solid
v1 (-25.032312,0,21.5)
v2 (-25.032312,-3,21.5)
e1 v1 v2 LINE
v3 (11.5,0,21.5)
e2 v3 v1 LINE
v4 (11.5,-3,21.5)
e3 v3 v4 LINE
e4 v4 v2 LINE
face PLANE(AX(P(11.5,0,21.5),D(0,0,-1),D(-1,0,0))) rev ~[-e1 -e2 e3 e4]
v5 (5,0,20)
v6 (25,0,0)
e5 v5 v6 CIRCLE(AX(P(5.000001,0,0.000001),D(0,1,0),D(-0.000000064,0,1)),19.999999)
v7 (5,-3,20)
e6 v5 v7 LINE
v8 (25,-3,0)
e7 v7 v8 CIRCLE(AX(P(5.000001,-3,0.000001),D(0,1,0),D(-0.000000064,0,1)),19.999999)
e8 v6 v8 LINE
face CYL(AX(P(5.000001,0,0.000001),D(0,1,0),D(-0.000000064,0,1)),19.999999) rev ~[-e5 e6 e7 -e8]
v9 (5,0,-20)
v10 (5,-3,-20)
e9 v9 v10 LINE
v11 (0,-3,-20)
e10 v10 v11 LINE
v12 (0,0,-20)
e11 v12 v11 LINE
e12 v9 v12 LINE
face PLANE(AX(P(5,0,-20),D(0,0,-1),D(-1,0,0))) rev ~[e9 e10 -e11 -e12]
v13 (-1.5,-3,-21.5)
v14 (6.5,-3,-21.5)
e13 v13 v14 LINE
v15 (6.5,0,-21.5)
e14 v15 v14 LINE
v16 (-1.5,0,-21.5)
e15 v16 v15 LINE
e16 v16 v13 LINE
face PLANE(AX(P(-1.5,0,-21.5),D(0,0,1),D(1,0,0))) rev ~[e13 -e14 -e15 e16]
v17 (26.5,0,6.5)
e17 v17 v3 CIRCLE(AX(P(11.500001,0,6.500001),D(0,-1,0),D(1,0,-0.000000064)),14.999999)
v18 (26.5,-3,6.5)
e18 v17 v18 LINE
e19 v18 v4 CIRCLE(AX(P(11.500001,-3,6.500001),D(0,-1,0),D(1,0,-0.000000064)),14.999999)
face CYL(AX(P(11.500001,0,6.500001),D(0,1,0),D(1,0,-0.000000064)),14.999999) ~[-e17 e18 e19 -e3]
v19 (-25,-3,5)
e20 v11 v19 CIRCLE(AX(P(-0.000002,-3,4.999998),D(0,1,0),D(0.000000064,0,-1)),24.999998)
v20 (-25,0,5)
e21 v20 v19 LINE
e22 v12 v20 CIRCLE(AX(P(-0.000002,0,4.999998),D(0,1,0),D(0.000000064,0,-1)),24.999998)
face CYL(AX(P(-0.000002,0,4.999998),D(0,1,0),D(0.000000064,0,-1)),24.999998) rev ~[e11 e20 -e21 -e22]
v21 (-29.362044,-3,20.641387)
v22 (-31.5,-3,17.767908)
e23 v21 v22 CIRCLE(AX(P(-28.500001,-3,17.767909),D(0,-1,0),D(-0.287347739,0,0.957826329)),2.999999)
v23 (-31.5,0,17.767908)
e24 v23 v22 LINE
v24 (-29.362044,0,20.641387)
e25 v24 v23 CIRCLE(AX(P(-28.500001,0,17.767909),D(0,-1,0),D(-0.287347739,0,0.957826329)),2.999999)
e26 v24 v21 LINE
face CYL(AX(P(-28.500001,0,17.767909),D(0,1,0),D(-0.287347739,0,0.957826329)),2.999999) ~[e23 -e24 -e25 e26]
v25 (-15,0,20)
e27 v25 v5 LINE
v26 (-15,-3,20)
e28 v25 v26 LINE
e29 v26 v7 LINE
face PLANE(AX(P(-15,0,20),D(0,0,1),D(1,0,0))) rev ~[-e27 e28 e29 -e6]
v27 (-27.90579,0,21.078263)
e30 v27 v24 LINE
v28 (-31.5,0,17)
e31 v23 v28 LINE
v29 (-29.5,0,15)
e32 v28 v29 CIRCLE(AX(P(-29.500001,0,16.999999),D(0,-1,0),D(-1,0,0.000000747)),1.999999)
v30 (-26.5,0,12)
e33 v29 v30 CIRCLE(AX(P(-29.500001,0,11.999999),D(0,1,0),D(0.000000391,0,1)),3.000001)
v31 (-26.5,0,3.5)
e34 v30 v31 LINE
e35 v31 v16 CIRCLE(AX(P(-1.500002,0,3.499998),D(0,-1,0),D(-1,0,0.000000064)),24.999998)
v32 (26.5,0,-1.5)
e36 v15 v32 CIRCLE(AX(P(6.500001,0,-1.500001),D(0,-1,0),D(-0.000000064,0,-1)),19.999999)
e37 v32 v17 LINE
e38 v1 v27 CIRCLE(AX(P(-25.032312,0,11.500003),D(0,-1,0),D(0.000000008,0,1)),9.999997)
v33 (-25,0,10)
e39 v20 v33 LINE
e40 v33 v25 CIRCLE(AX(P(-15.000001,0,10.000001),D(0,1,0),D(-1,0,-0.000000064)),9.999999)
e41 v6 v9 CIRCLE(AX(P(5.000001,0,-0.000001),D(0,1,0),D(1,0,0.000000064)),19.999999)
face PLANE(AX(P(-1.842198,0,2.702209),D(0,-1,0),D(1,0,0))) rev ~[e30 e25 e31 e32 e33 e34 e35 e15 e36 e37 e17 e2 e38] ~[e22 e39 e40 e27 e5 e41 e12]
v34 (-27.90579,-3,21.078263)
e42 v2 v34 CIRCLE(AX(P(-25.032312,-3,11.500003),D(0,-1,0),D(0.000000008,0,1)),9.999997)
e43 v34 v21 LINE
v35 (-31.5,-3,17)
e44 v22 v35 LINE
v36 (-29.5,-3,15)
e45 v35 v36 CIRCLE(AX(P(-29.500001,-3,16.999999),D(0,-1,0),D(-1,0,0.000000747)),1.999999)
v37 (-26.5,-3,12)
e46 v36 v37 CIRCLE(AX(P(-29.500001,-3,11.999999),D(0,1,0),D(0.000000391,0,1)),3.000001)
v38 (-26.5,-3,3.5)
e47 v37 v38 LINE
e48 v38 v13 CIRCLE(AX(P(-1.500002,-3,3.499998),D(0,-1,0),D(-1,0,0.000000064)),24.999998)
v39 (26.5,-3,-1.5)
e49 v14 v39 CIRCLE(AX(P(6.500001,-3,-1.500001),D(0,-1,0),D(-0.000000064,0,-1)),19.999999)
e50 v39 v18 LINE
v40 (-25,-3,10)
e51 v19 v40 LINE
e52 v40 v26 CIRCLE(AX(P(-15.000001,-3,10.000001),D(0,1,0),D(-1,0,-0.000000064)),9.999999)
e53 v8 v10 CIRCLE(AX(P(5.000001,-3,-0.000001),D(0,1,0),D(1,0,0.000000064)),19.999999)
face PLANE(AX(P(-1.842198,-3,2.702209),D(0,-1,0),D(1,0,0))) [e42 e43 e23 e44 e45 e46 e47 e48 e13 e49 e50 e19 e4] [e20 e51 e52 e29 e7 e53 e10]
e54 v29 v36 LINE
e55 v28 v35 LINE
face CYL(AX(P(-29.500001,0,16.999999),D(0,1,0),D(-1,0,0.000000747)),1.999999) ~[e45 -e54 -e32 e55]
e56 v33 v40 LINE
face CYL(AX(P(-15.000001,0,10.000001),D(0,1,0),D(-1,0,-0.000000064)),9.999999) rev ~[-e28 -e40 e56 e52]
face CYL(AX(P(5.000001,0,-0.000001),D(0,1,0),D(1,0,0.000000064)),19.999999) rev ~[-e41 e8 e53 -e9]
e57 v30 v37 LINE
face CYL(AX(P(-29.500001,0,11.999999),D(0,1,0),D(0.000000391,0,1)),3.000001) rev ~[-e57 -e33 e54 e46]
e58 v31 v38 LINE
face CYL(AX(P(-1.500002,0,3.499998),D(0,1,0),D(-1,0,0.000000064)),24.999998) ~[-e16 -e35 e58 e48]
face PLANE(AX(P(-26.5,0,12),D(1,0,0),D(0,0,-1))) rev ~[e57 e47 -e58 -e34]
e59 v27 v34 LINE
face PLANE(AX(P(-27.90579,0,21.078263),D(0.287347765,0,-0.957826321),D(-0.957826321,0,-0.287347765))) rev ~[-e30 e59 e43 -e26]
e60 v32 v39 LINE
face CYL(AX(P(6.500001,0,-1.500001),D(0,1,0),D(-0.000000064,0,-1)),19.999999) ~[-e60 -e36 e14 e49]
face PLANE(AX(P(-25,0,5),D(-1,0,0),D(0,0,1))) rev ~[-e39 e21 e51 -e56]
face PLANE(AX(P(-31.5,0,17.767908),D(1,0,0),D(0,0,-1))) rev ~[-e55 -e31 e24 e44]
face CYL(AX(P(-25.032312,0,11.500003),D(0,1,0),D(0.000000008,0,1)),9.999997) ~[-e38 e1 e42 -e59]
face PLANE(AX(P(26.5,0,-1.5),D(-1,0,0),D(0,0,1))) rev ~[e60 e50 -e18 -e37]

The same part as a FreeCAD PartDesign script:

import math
import FreeCAD as App
import Part
import Sketcher
from FreeCAD import Vector

doc = App.newDocument("Part")
body = doc.addObject("PartDesign::Body", "Body")

# Sketch on XZ plane
sketch1 = body.newObject("Sketcher::SketchObject", "Sketch")
sketch1.AttachmentSupport = (doc.getObject("XZ_Plane"), [""])
sketch1.MapMode = "FlatFace"
sketch1.addGeometry([
    Part.ArcOfCircle(Part.Circle(Vector(11.500001, 6.500001, 0), Vector(0, 0, 1), 14.999999), math.radians(-0.000004), math.radians(90.000004)),  # 0
    Part.LineSegment(Vector(11.5, 21.5, 0), Vector(-25.032312, 21.5, 0)),  # 1
    Part.ArcOfCircle(Part.Circle(Vector(-25.032312, 11.500003, 0), Vector(0, 0, 1), 9.999997), math.radians(90), math.radians(106.699244)),  # 2
    Part.LineSegment(Vector(-27.90579, 21.078263, 0), Vector(-29.362044, 20.641387, 0)),  # 3
    Part.ArcOfCircle(Part.Circle(Vector(-28.500001, 17.767909, 0), Vector(0, 0, 1), 2.999999), math.radians(106.699235), math.radians(180.00002)),  # 4
    Part.LineSegment(Vector(-31.5, 17.767908, 0), Vector(-31.5, 17, 0)),  # 5
    Part.ArcOfCircle(Part.Circle(Vector(-29.500001, 16.999999, 0), Vector(0, 0, 1), 1.999999), math.radians(179.999957), math.radians(270.000043)),  # 6
    Part.ArcOfCircle(Part.Circle(Vector(-29.500001, 11.999999, 0), Vector(0, 0, 1), 3.000001), math.radians(0.000022), math.radians(89.999978)),  # 7
    Part.LineSegment(Vector(-26.5, 12, 0), Vector(-26.5, 3.5, 0)),  # 8
    Part.ArcOfCircle(Part.Circle(Vector(-1.500002, 3.499998, 0), Vector(0, 0, 1), 24.999998), math.radians(179.999996), math.radians(270.000004)),  # 9
    Part.LineSegment(Vector(-1.5, -21.5, 0), Vector(6.5, -21.5, 0)),  # 10
    Part.ArcOfCircle(Part.Circle(Vector(6.500001, -1.500001, 0), Vector(0, 0, 1), 19.999999), math.radians(-90.000004), math.radians(0.000004)),  # 11
    Part.LineSegment(Vector(26.5, -1.5, 0), Vector(26.5, 6.5, 0)),  # 12
    Part.ArcOfCircle(Part.Circle(Vector(-15.000001, 10.000001, 0), Vector(0, 0, 1), 9.999999), math.radians(89.999996), math.radians(180.000004)),  # 13
    Part.LineSegment(Vector(-15, 20, 0), Vector(5, 20, 0)),  # 14
    Part.ArcOfCircle(Part.Circle(Vector(5.000001, 0.000001, 0), Vector(0, 0, 1), 19.999999), math.radians(-0.000004), math.radians(90.000004)),  # 15
    Part.ArcOfCircle(Part.Circle(Vector(5.000001, -0.000001, 0), Vector(0, 0, 1), 19.999999), math.radians(-90.000004), math.radians(0.000004)),  # 16
    Part.LineSegment(Vector(5, -20, 0), Vector(0, -20, 0)),  # 17
    Part.ArcOfCircle(Part.Circle(Vector(-0.000002, 4.999998, 0), Vector(0, 0, 1), 24.999998), math.radians(179.999996), math.radians(270.000004)),  # 18
    Part.LineSegment(Vector(-25, 5, 0), Vector(-25, 10, 0)),  # 19
], False)
sketch1.addConstraint([
    Sketcher.Constraint("Tangent", 0, 2, 1, 1),
    Sketcher.Constraint("Tangent", 1, 2, 2, 1),
    Sketcher.Constraint("Tangent", 2, 2, 3, 1),
    Sketcher.Constraint("Tangent", 3, 2, 4, 1),
    Sketcher.Constraint("Tangent", 4, 2, 5, 1),
    Sketcher.Constraint("Tangent", 5, 2, 6, 1),
    Sketcher.Constraint("Tangent", 6, 2, 7, 2),
    Sketcher.Constraint("Tangent", 7, 1, 8, 1),
    Sketcher.Constraint("Tangent", 8, 2, 9, 1),
    Sketcher.Constraint("Tangent", 9, 2, 10, 1),
    Sketcher.Constraint("Tangent", 10, 2, 11, 1),
    Sketcher.Constraint("Tangent", 11, 2, 12, 1),
    Sketcher.Constraint("Tangent", 12, 2, 0, 1),
    Sketcher.Constraint("Tangent", 13, 1, 14, 1),
    Sketcher.Constraint("Tangent", 14, 2, 15, 2),
    Sketcher.Constraint("Tangent", 15, 1, 16, 2),
    Sketcher.Constraint("Tangent", 16, 1, 17, 1),
    Sketcher.Constraint("Tangent", 17, 2, 18, 2),
    Sketcher.Constraint("Tangent", 18, 1, 19, 1),
    Sketcher.Constraint("Tangent", 19, 2, 13, 2),
    Sketcher.Constraint("Horizontal", 1),
    Sketcher.Constraint("Vertical", 5),
    Sketcher.Constraint("Vertical", 8),
    Sketcher.Constraint("Horizontal", 10),
    Sketcher.Constraint("Vertical", 12),
    Sketcher.Constraint("Horizontal", 14),
    Sketcher.Constraint("Horizontal", 17),
    Sketcher.Constraint("Vertical", 19),
    Sketcher.Constraint("Equal", 11, 15),
    Sketcher.Constraint("Equal", 15, 16),
    Sketcher.Constraint("Equal", 9, 18),
    Sketcher.Constraint("PointOnObject", 15, 3, -1),
    Sketcher.Constraint("PointOnObject", 18, 3, -2),
    Sketcher.Constraint("PointOnObject", 15, 1, -1),
    Sketcher.Constraint("Vertical", 6, 3, 7, 3),
    Sketcher.Constraint("Equal", 10, 12),
    Sketcher.Constraint("Equal", 17, 19),
    Sketcher.Constraint("Radius", 0, 14.999999),
    Sketcher.Constraint("Radius", 4, 2.999999),
    Sketcher.Constraint("Radius", 6, 1.999999),
    Sketcher.Constraint("Radius", 7, 3.000001),
    Sketcher.Constraint("Radius", 9, 24.999998),
    Sketcher.Constraint("Radius", 11, 19.999999),
    Sketcher.Constraint("Radius", 13, 9.999999),
    Sketcher.Constraint("DistanceX", 10, 1, 10, 2, 8.0),
    Sketcher.Constraint("DistanceY", 8, 2, 8, 1, 8.5),
    Sketcher.Constraint("DistanceY", -1, 1, 6, 3, 16.999999),
    Sketcher.Constraint("DistanceX", -1, 1, 0, 3, 11.500001),
    Sketcher.Constraint("DistanceY", 15, 3, 2, 3, 11.500002),
    Sketcher.Constraint("DistanceX", 1, 2, 1, 1, 36.532312),
    Sketcher.Constraint("DistanceY", 5, 2, 5, 1, 0.767908),
])
pad1 = body.newObject("PartDesign::Pad", "Pad")
pad1.Profile = sketch1
pad1.Length = 3

doc.recompute()
